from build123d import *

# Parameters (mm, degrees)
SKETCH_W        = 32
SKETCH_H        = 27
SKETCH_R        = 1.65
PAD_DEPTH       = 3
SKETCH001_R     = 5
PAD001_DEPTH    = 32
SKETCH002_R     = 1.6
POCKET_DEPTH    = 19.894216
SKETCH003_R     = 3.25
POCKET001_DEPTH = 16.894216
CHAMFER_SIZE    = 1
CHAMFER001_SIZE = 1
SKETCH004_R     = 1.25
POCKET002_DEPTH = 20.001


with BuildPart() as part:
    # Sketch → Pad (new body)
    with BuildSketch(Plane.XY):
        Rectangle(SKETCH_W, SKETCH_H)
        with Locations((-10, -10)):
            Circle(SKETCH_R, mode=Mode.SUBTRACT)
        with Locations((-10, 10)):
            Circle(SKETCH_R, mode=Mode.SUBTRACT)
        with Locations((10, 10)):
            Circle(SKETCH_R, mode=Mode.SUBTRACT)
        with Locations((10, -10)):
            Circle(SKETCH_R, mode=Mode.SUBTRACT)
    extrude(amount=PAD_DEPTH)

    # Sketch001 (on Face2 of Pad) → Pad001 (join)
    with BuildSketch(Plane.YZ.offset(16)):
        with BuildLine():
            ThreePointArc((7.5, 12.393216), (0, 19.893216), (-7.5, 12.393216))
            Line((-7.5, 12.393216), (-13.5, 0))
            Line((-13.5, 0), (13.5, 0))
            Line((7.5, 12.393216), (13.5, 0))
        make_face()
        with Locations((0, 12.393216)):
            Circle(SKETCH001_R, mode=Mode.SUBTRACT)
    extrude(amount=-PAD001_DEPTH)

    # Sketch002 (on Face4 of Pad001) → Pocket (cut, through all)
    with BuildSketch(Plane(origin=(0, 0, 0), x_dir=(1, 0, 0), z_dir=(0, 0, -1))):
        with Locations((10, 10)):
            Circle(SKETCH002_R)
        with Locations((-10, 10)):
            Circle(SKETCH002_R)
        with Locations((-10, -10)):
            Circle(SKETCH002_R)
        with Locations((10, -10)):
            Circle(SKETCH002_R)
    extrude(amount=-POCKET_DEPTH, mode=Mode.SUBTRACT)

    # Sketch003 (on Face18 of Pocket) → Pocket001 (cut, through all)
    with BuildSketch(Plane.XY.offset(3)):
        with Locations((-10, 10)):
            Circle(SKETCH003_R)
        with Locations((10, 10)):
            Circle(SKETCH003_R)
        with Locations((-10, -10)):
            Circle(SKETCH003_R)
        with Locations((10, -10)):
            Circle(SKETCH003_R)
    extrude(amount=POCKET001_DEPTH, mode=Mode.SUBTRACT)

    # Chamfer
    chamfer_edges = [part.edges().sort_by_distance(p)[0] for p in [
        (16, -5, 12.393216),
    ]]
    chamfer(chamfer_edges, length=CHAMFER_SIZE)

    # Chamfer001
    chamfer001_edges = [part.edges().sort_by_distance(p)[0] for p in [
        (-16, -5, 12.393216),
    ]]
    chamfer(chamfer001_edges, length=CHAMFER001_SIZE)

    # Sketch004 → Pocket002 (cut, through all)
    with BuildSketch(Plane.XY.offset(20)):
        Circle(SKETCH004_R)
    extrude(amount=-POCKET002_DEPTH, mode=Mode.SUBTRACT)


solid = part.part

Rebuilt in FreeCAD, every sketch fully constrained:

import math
import FreeCAD as App
import Part
import Sketcher

V = App.Vector


def edges_at(feature, points):
    """Names of the edges that pass closest to the given points."""
    edges = feature.Shape.Edges
    near = lambda p: min(range(len(edges)), key=lambda i: edges[i].distToShape(Part.Vertex(*p))[0])
    return sorted({f"Edge{near(p) + 1}" for p in points})

doc = App.newDocument("Part")
params = doc.addObject("Spreadsheet::Sheet", "Params")
for row, (alias, value) in enumerate([
    ("sketch1_diameter", "3.3 mm"),
    ("sketch1_width", "32 mm"),
    ("sketch1_height", "27 mm"),
    ("pad1_length", "3 mm"),
    ("sketch2_diameter", "10 mm"),
    ("sketch2_radius", "7.5 mm"),
    ("sketch2_width", "27 mm"),
    ("pad2_length", "32 mm"),
    ("sketch3_diameter", "3.2 mm"),
    ("sketch4_diameter", "6.5 mm"),
    ("chamfer_size", "1 mm"),
    ("chamfer2_size", "1 mm"),
    ("sketch5_diameter", "2.5 mm"),
], start=1):
    params.set(f"A{row}", alias)
    params.set(f"B{row}", "=" + value)
    params.setAlias(f"B{row}", alias)

body = doc.addObject("PartDesign::Body", "Body")

sketch1 = body.newObject("Sketcher::SketchObject", "Sketch")
sketch1.AttachmentSupport = (doc.getObject("XY_Plane"), [""])
sketch1.MapMode = "FlatFace"
sketch1.addGeometry(Part.LineSegment(V(-16, 13.5, 0), V(-16, -13.5, 0)), False)
sketch1.addGeometry(Part.LineSegment(V(-16, -13.5, 0), V(16, -13.5, 0)), False)
sketch1.addGeometry(Part.LineSegment(V(16, -13.5, 0), V(16, 13.5, 0)), False)
sketch1.addGeometry(Part.LineSegment(V(16, 13.5, 0), V(-16, 13.5, 0)), False)
sketch1.addGeometry(Part.Circle(V(-10, -10, 0), V(0, 0, 1), 1.6), False)
sketch1.addGeometry(Part.Circle(V(10, -10, 0), V(0, 0, 1), 1.6), False)
sketch1.addGeometry(Part.Circle(V(-10, 10, 0), V(0, 0, 1), 1.6), False)
sketch1.addGeometry(Part.Circle(V(10, 10, 0), V(0, 0, 1), 1.6), False)
sketch1.addConstraint(Sketcher.Constraint("Coincident", 0, 2, 1, 1))
sketch1.addConstraint(Sketcher.Constraint("Coincident", 1, 2, 2, 1))
sketch1.addConstraint(Sketcher.Constraint("Coincident", 2, 2, 3, 1))
sketch1.addConstraint(Sketcher.Constraint("Coincident", 3, 2, 0, 1))
sketch1.addConstraint(Sketcher.Constraint("Vertical", 0))
sketch1.addConstraint(Sketcher.Constraint("Horizontal", 1))
sketch1.addConstraint(Sketcher.Constraint("Vertical", 2))
sketch1.addConstraint(Sketcher.Constraint("Horizontal", 3))
sketch1.addConstraint(Sketcher.Constraint("Equal", 4, 5))
sketch1.addConstraint(Sketcher.Constraint("Equal", 5, 6))
sketch1.addConstraint(Sketcher.Constraint("Equal", 6, 7))
sketch1.addConstraint(Sketcher.Constraint("Symmetric", 5, 3, 6, 3, -1, 1))
sketch1.addConstraint(Sketcher.Constraint("Symmetric", 4, 3, 7, 3, -1, 1))
sketch1.addConstraint(Sketcher.Constraint("Symmetric", 0, 2, 2, 2, -1, 1))
sketch1.addConstraint(Sketcher.Constraint("Symmetric", 4, 3, 5, 3, -2))
sketch1.addConstraint(Sketcher.Constraint("Diameter", 4, 3.3))
sketch1.addConstraint(Sketcher.Constraint("DistanceX", 1, 1, 1, 2, 32.0))
sketch1.addConstraint(Sketcher.Constraint("DistanceY", 0, 2, 0, 1, 27.0))
sketch1.addConstraint(Sketcher.Constraint("DistanceX", 4, 3, -1, 1, 10.0))
sketch1.addConstraint(Sketcher.Constraint("DistanceY", 4, 3, -1, 1, 10.0))
sketch1.setExpression("Constraints[15]", "Params.sketch1_diameter")
sketch1.setExpression("Constraints[16]", "Params.sketch1_width")
sketch1.setExpression("Constraints[17]", "Params.sketch1_height")
pad1 = body.newObject("PartDesign::Pad", "Pad")
pad1.Profile = sketch1
pad1.setExpression("Length", "Params.pad1_length")

sketch2 = body.newObject("Sketcher::SketchObject", "Sketch001")
sketch2.AttachmentSupport = (doc.getObject("YZ_Plane"), [""])
sketch2.MapMode = "FlatFace"
sketch2.AttachmentOffset = App.Placement(V(0, 0, 16), App.Rotation())
sketch2.addGeometry(Part.ArcOfCircle(Part.Circle(V(0, 12, 0), V(0, 0, 1), 8), math.radians(0), math.radians(180)), False)
sketch2.addGeometry(Part.LineSegment(V(-8, 12, 0), V(-14, 0, 0)), False)
sketch2.addGeometry(Part.LineSegment(V(-14, 0, 0), V(14, 0, 0)), False)
sketch2.addGeometry(Part.LineSegment(V(14, 0, 0), V(8, 12, 0)), False)
sketch2.addGeometry(Part.Circle(V(0, 12, 0), V(0, 0, 1), 5), False)
sketch2.addConstraint(Sketcher.Constraint("Coincident", 0, 2, 1, 1))
sketch2.addConstraint(Sketcher.Constraint("Coincident", 1, 2, 2, 1))
sketch2.addConstraint(Sketcher.Constraint("Coincident", 2, 2, 3, 1))
sketch2.addConstraint(Sketcher.Constraint("Coincident", 3, 2, 0, 1))
sketch2.addConstraint(Sketcher.Constraint("Horizontal", 2))
sketch2.addConstraint(Sketcher.Constraint("Coincident", 4, 3, 0, 3))
sketch2.addConstraint(Sketcher.Constraint("Symmetric", 1, 2, 2, 2, -1, 1))
sketch2.addConstraint(Sketcher.Constraint("Symmetric", 0, 2, 3, 2, -2))
sketch2.addConstraint(Sketcher.Constraint("Horizontal", 4, 3, 0, 2))
sketch2.addConstraint(Sketcher.Constraint("Diameter", 4, 10.0))
sketch2.addConstraint(Sketcher.Constraint("Radius", 0, 7.5))
sketch2.addConstraint(Sketcher.Constraint("DistanceX", 2, 1, 2, 2, 27.0))
sketch2.addConstraint(Sketcher.Constraint("Distance", 1, 13.769234))
sketch2.setExpression("Constraints[9]", "Params.sketch2_diameter")
sketch2.setExpression("Constraints[10]", "Params.sketch2_radius")
sketch2.setExpression("Constraints[11]", "Params.sketch2_width")
pad2 = body.newObject("PartDesign::Pad", "Pad001")
pad2.Profile = sketch2
pad2.setExpression("Length", "Params.pad2_length")
pad2.Reversed = True

sketch3 = body.newObject("Sketcher::SketchObject", "Sketch002")
sketch3.AttachmentSupport = (doc.getObject("XY_Plane"), [""])
sketch3.MapMode = "FlatFace"
sketch3.addGeometry(Part.Circle(V(10, -10, 0), V(0, 0, 1), 1.6), False)
sketch3.addGeometry(Part.Circle(V(-10, -10, 0), V(0, 0, 1), 1.6), False)
sketch3.addGeometry(Part.Circle(V(-10, 10, 0), V(0, 0, 1), 1.6), False)
sketch3.addGeometry(Part.Circle(V(10, 10, 0), V(0, 0, 1), 1.6), False)
sketch3.addConstraint(Sketcher.Constraint("Equal", 0, 1))
sketch3.addConstraint(Sketcher.Constraint("Equal", 1, 2))
sketch3.addConstraint(Sketcher.Constraint("Equal", 2, 3))
sketch3.addConstraint(Sketcher.Constraint("Symmetric", 0, 3, 2, 3, -1, 1))
sketch3.addConstraint(Sketcher.Constraint("Symmetric", 1, 3, 3, 3, -1, 1))
sketch3.addConstraint(Sketcher.Constraint("Symmetric", 0, 3, 1, 3, -2))
sketch3.addConstraint(Sketcher.Constraint("Diameter", 0, 3.2))
sketch3.addConstraint(Sketcher.Constraint("DistanceX", -1, 1, 0, 3, 10.0))
sketch3.addConstraint(Sketcher.Constraint("DistanceY", 0, 3, -1, 1, 10.0))
sketch3.setExpression("Constraints[6]", "Params.sketch3_diameter")
pocket1 = body.newObject("PartDesign::Pocket", "Pocket")
pocket1.Profile = sketch3
pocket1.Type = "ThroughAll"
pocket1.Reversed = True

sketch4 = body.newObject("Sketcher::SketchObject", "Sketch003")
sketch4.AttachmentSupport = (doc.getObject("XY_Plane"), [""])
sketch4.MapMode = "FlatFace"
sketch4.AttachmentOffset = App.Placement(V(0, 0, 3), App.Rotation())
sketch4.addGeometry(Part.Circle(V(-10, 10, 0), V(0, 0, 1), 3.2), False)
sketch4.addGeometry(Part.Circle(V(10, 10, 0), V(0, 0, 1), 3.2), False)
sketch4.addGeometry(Part.Circle(V(-10, -10, 0), V(0, 0, 1), 3.2), False)
sketch4.addGeometry(Part.Circle(V(10, -10, 0), V(0, 0, 1), 3.2), False)
sketch4.addConstraint(Sketcher.Constraint("Equal", 0, 1))
sketch4.addConstraint(Sketcher.Constraint("Equal", 1, 2))
sketch4.addConstraint(Sketcher.Constraint("Equal", 2, 3))
sketch4.addConstraint(Sketcher.Constraint("Symmetric", 1, 3, 2, 3, -1, 1))
sketch4.addConstraint(Sketcher.Constraint("Symmetric", 0, 3, 3, 3, -1, 1))
sketch4.addConstraint(Sketcher.Constraint("Symmetric", 0, 3, 1, 3, -2))
sketch4.addConstraint(Sketcher.Constraint("Diameter", 0, 6.5))
sketch4.addConstraint(Sketcher.Constraint("DistanceX", 0, 3, -1, 1, 10.0))
sketch4.addConstraint(Sketcher.Constraint("DistanceY", -1, 1, 0, 3, 10.0))
sketch4.setExpression("Constraints[6]", "Params.sketch4_diameter")
pocket2 = body.newObject("PartDesign::Pocket", "Pocket001")
pocket2.Profile = sketch4
pocket2.Type = "ThroughAll"
pocket2.Reversed = True
doc.recompute()

chamfer = body.newObject("PartDesign::Chamfer", "Chamfer")
chamfer.Base = (pocket2, edges_at(pocket2, [(16, -5, 12.393)]))
chamfer.setExpression("Size", "Params.chamfer_size")
doc.recompute()

chamfer2 = body.newObject("PartDesign::Chamfer", "Chamfer001")
chamfer2.Base = (chamfer, edges_at(chamfer, [(-16, -5, 12.393)]))
chamfer2.setExpression("Size", "Params.chamfer2_size")

sketch5 = body.newObject("Sketcher::SketchObject", "Sketch004")
sketch5.AttachmentSupport = (doc.getObject("XY_Plane"), [""])
sketch5.MapMode = "FlatFace"
sketch5.AttachmentOffset = App.Placement(V(0, 0, 20), App.Rotation())
sketch5.addGeometry(Part.Circle(V(0, 0, 0), V(0, 0, 1), 1.2), False)
sketch5.addConstraint(Sketcher.Constraint("Coincident", 0, 3, -1, 1))
sketch5.addConstraint(Sketcher.Constraint("Diameter", 0, 2.5))
sketch5.setExpression("Constraints[1]", "Params.sketch5_diameter")
pocket3 = body.newObject("PartDesign::Pocket", "Pocket002")
pocket3.Profile = sketch5
pocket3.Type = "ThroughAll"

doc.recompute()
